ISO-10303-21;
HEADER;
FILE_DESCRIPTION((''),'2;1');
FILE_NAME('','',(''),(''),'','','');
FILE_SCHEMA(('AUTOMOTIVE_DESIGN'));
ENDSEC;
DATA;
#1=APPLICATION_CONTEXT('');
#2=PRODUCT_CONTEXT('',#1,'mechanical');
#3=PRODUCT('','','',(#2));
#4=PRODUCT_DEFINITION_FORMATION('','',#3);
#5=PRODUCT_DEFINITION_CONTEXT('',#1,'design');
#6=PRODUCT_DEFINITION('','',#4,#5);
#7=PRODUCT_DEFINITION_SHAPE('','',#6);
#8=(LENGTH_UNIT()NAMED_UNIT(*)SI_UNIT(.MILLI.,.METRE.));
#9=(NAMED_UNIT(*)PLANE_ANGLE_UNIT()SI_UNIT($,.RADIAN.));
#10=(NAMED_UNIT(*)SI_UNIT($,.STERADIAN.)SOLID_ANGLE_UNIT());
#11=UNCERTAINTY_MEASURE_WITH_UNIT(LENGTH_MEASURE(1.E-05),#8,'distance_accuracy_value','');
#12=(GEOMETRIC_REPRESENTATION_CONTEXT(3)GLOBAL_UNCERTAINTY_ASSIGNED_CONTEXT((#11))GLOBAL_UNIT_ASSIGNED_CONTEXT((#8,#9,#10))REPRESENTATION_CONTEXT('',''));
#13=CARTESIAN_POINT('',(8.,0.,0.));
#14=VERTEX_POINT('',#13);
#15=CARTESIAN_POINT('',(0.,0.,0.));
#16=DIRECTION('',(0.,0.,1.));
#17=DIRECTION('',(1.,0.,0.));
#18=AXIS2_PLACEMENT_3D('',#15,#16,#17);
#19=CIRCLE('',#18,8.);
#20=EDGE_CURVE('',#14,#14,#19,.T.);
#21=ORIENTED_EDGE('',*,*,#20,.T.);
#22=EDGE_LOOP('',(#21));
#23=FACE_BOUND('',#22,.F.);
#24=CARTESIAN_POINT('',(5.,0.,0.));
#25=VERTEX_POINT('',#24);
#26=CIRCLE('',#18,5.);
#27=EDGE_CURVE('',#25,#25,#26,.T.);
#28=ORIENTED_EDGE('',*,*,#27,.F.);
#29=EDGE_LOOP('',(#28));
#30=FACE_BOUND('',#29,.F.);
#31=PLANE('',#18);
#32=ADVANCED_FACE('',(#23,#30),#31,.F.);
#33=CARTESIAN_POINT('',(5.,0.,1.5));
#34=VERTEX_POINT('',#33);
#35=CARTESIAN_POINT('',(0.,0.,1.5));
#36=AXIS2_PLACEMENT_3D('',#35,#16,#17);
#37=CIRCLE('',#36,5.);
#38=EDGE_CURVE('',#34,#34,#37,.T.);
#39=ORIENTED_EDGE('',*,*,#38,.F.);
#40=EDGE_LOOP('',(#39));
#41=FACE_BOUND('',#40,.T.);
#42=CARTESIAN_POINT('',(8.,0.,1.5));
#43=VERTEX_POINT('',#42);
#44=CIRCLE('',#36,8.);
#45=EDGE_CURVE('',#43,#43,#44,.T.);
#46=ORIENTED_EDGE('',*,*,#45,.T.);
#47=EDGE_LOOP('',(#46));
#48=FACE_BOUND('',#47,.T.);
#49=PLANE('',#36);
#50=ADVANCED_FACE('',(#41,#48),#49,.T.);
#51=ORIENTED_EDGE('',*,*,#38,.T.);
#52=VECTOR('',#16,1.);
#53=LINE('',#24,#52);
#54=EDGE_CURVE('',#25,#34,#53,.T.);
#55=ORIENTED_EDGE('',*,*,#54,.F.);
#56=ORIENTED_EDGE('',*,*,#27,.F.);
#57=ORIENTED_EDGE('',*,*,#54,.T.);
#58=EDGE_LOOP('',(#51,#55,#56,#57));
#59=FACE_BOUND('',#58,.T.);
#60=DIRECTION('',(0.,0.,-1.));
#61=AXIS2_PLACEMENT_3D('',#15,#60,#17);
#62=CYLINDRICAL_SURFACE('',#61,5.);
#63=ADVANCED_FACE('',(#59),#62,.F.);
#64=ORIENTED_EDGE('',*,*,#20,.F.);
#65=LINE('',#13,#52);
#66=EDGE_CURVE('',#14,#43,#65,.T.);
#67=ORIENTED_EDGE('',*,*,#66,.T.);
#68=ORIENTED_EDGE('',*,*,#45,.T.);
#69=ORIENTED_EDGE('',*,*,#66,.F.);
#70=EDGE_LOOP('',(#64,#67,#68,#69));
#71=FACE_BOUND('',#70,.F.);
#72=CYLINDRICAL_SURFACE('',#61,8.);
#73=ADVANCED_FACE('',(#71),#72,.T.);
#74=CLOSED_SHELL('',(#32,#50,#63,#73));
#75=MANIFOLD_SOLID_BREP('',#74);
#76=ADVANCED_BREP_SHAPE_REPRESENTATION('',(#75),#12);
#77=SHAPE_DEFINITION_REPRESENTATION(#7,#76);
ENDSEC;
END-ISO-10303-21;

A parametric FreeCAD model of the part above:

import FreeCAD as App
import Part
import Sketcher
from FreeCAD import Vector
Q = App.Units.Quantity

doc = App.newDocument("Part")
body = doc.addObject("PartDesign::Body", "Body")

sketch1 = body.newObject("Sketcher::SketchObject", "Sketch")
sketch1.AttachmentSupport = (doc.getObject("XY_Plane"), [""])
sketch1.MapMode = "FlatFace"
sketch1.addGeometry([
    Part.Circle(Vector(0, 0, 0), Vector(0, 0, 1), 8),
    Part.Circle(Vector(0, 0, 0), Vector(0, 0, 1), 5),
], False)
sketch1.addConstraint([
    Sketcher.Constraint("Coincident", 0, 3, -1, 1),
    Sketcher.Constraint("Coincident", 1, 3, -1, 1),
    Sketcher.Constraint("Diameter", 1, Q("10 mm")),
    Sketcher.Constraint("Diameter", 0, Q("16 mm")),
])
pad1 = body.newObject("PartDesign::Pad", "Pad")
pad1.Profile = sketch1
pad1.Length = 1.5

doc.recompute()
